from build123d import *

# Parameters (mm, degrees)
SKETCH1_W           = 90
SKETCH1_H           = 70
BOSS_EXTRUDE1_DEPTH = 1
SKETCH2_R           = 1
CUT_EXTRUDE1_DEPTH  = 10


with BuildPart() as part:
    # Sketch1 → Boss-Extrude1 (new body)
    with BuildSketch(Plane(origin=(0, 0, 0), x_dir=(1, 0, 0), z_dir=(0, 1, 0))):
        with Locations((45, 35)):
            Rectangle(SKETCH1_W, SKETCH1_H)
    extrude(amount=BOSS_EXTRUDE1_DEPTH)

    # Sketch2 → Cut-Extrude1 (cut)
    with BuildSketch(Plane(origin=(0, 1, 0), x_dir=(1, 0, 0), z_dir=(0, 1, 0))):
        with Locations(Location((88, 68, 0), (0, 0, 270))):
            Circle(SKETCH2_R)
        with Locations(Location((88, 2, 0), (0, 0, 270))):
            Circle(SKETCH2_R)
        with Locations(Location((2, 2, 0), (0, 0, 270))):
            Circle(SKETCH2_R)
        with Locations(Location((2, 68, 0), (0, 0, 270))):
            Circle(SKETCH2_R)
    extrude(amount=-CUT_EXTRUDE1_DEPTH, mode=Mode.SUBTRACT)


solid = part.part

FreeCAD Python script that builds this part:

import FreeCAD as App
import Part
import Sketcher
from FreeCAD import Vector


def add_polygon(sketch, points):
    """Adds a closed chain of lines whose ends are joined by coincident constraints."""
    first, n = sketch.GeometryCount, len(points)
    for a, b in zip(points, points[1:] + points[:1]):
        sketch.addGeometry(Part.LineSegment(App.Vector(*a, 0), App.Vector(*b, 0)), False)
    for i in range(n):
        sketch.addConstraint(Sketcher.Constraint("Coincident", first + i, 2, first + (i + 1) % n, 1))

doc = App.newDocument("Part")
body = doc.addObject("PartDesign::Body", "Body")

# Sketch on XZ plane
sketch1 = body.newObject("Sketcher::SketchObject", "Sketch")
sketch1.AttachmentSupport = (doc.getObject("XZ_Plane"), [""])
sketch1.MapMode = "FlatFace"
add_polygon(sketch1, [(0, -70), (0, 0), (90, 0), (90, -70)])  # lines 0-3
sketch1.addConstraint([
    Sketcher.Constraint("Vertical", 0),
    Sketcher.Constraint("Horizontal", 1),
    Sketcher.Constraint("Vertical", 2),
    Sketcher.Constraint("Horizontal", 3),
    Sketcher.Constraint("Coincident", 0, 2, -1, 1),
    Sketcher.Constraint("DistanceX", 1, 1, 1, 2, 90.0),
    Sketcher.Constraint("DistanceY", 0, 1, 0, 2, 70.0),
])
pad1 = body.newObject("PartDesign::Pad", "Pad")
pad1.Profile = sketch1
pad1.Length = 1
pad1.Reversed = True

# Sketch on XZ plane
sketch2 = body.newObject("Sketcher::SketchObject", "Sketch001")
sketch2.AttachmentSupport = (doc.getObject("XZ_Plane"), [""])
sketch2.MapMode = "FlatFace"
sketch2.AttachmentOffset = App.Placement(Vector(0, 0, -1), App.Rotation())
sketch2.addGeometry([
    Part.Circle(Vector(88, -68, 0), Vector(0, 0, 1), 1),
    Part.Circle(Vector(88, -2, 0), Vector(0, 0, 1), 1),
    Part.Circle(Vector(2, -2, 0), Vector(0, 0, 1), 1),
    Part.Circle(Vector(2, -68, 0), Vector(0, 0, 1), 1),
], False)
sketch2.addConstraint([
    Sketcher.Constraint("Equal", 0, 1),
    Sketcher.Constraint("Equal", 1, 2),
    Sketcher.Constraint("Equal", 2, 3),
    Sketcher.Constraint("Horizontal", 1, 3, 2, 3),
    Sketcher.Constraint("Horizontal", 0, 3, 3, 3),
    Sketcher.Constraint("Vertical", 0, 3, 1, 3),
    Sketcher.Constraint("Vertical", 2, 3, 3, 3),
    Sketcher.Constraint("Diameter", 0, 2.0),
    Sketcher.Constraint("DistanceX", -1, 1, 0, 3, 88.0),
    Sketcher.Constraint("DistanceY", 0, 3, -1, 1, 68.0),
    Sketcher.Constraint("DistanceY", 1, 3, -1, 1, 2.0),
    Sketcher.Constraint("DistanceX", -1, 1, 2, 3, 2.0),
])
pocket1 = body.newObject("PartDesign::Pocket", "Pocket")
pocket1.Profile = sketch2
pocket1.Length = 10
pocket1.Reversed = True

doc.recompute()
